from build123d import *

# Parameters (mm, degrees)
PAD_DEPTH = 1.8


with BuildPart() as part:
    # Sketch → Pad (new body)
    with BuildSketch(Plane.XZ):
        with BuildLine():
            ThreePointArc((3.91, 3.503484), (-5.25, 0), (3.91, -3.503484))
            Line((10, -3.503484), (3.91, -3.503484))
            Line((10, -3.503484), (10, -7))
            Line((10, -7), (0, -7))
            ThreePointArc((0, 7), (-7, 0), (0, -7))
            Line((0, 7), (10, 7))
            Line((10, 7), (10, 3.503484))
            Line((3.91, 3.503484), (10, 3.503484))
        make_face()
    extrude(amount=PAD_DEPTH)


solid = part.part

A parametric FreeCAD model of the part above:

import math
import FreeCAD as App
import Part
import Sketcher

doc = App.newDocument("Part")
body = doc.addObject("PartDesign::Body", "Body")

# Sketch on XZ plane
sketch1 = body.newObject("Sketcher::SketchObject", "Sketch")
sketch1.AttachmentSupport = (doc.getObject("XZ_Plane"), [""])
sketch1.MapMode = "FlatFace"
sketch1.addGeometry([
    Part.ArcOfCircle(Part.Circle(App.Vector(0, 0, 0), App.Vector(0, 0, 1), 5.3), math.radians(42), math.radians(318)),  # 0
    Part.LineSegment(App.Vector(3.9, 3.5, 0), App.Vector(10, 3.5, 0)),  # 1
    Part.LineSegment(App.Vector(10, 3.5, 0), App.Vector(10, 7, 0)),  # 2
    Part.LineSegment(App.Vector(10, 7, 0), App.Vector(0, 7, 0)),  # 3
    Part.ArcOfCircle(Part.Circle(App.Vector(0, 0, 0), App.Vector(0, 0, 1), 7), math.radians(90), math.radians(270)),  # 4
    Part.LineSegment(App.Vector(0, -7, 0), App.Vector(10, -7, 0)),  # 5
    Part.LineSegment(App.Vector(10, -7, 0), App.Vector(10, -3.5, 0)),  # 6
    Part.LineSegment(App.Vector(10, -3.5, 0), App.Vector(3.9, -3.5, 0)),  # 7
], False)
sketch1.addConstraint([
    Sketcher.Constraint("Coincident", 0, 1, 1, 1),
    Sketcher.Constraint("Coincident", 1, 2, 2, 1),
    Sketcher.Constraint("Coincident", 2, 2, 3, 1),
    Sketcher.Constraint("Tangent", 3, 2, 4, 1),
    Sketcher.Constraint("Tangent", 4, 2, 5, 1),
    Sketcher.Constraint("Coincident", 5, 2, 6, 1),
    Sketcher.Constraint("Coincident", 6, 2, 7, 1),
    Sketcher.Constraint("Coincident", 7, 2, 0, 2),
    Sketcher.Constraint("Horizontal", 1),
    Sketcher.Constraint("Vertical", 2),
    Sketcher.Constraint("Horizontal", 3),
    Sketcher.Constraint("Horizontal", 5),
    Sketcher.Constraint("Vertical", 6),
    Sketcher.Constraint("Horizontal", 7),
    Sketcher.Constraint("Coincident", 0, 3, -1, 1),
    Sketcher.Constraint("Coincident", 4, 3, -1, 1),
    Sketcher.Constraint("Symmetric", 1, 2, 6, 2, -1),
    Sketcher.Constraint("Radius", 4, 7.0),
    Sketcher.Constraint("DistanceX", 3, 2, 3, 1, 10.0),
    Sketcher.Constraint("Radius", 0, 5.25),
    Sketcher.Constraint("DistanceX", 1, 1, 1, 2, 6.09),
])
pad1 = body.newObject("PartDesign::Pad", "Pad")
pad1.Profile = sketch1
pad1.Length = 1.8

doc.recompute()
